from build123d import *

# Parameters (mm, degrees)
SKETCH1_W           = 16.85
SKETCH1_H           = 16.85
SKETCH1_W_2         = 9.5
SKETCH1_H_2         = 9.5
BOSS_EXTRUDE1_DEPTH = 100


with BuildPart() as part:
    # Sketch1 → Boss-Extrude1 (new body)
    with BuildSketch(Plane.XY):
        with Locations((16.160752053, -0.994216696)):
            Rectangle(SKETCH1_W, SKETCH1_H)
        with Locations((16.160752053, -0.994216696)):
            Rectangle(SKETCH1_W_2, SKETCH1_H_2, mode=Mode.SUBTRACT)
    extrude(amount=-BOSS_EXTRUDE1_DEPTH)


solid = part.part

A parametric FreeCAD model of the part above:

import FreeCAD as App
import Part
import Sketcher
from FreeCAD import Vector


def add_polygon(sketch, points):
    """Adds a closed chain of lines whose ends are joined by coincident constraints."""
    first, n = sketch.GeometryCount, len(points)
    for a, b in zip(points, points[1:] + points[:1]):
        sketch.addGeometry(Part.LineSegment(App.Vector(*a, 0), App.Vector(*b, 0)), False)
    for i in range(n):
        sketch.addConstraint(Sketcher.Constraint("Coincident", first + i, 2, first + (i + 1) % n, 1))

doc = App.newDocument("Part")
body = doc.addObject("PartDesign::Body", "Body")

# Sketch on XY plane
sketch1 = doc.addObject("Sketcher::SketchObject", "Sketch")
body.addObject(sketch1)
sketch1.AttachmentSupport = (doc.XY_Plane, [""])
sketch1.MapMode = "FlatFace"
add_polygon(sketch1, [(7.735752, 7.430783), (7.735752, -9.419217), (24.585752, -9.419217), (24.585752, 7.430783)])  # lines 0-3
add_polygon(sketch1, [(20.910752, -5.744217), (11.410752, -5.744217), (11.410752, 3.755783), (20.910752, 3.755783)])  # lines 4-7
sketch1.addConstraint([
    Sketcher.Constraint("Vertical", 0),
    Sketcher.Constraint("Horizontal", 1),
    Sketcher.Constraint("Vertical", 2),
    Sketcher.Constraint("Horizontal", 3),
    Sketcher.Constraint("Horizontal", 4),
    Sketcher.Constraint("Vertical", 5),
    Sketcher.Constraint("Horizontal", 6),
    Sketcher.Constraint("Vertical", 7),
    Sketcher.Constraint("Equal", 3, 0),
    Sketcher.Constraint("Equal", 6, 5),
    Sketcher.Constraint("DistanceX", 4, 2, 4, 1, 9.5),
    Sketcher.Constraint("DistanceX", 1, 1, 1, 2, 16.85),
    Sketcher.Constraint("DistanceX", 0, 2, 4, 2, 3.675),
    Sketcher.Constraint("DistanceY", 0, 2, 4, 2, 3.675),
    Sketcher.Constraint("DistanceX", -1, 1, 0, 2, 7.735752),
    Sketcher.Constraint("DistanceY", 0, 2, -1, 1, 9.419217),
])
pad1 = doc.addObject("PartDesign::Pad", "Pad")
body.addObject(pad1)
pad1.Profile = sketch1
pad1.Length = 100
pad1.Reversed = True

doc.recompute()
